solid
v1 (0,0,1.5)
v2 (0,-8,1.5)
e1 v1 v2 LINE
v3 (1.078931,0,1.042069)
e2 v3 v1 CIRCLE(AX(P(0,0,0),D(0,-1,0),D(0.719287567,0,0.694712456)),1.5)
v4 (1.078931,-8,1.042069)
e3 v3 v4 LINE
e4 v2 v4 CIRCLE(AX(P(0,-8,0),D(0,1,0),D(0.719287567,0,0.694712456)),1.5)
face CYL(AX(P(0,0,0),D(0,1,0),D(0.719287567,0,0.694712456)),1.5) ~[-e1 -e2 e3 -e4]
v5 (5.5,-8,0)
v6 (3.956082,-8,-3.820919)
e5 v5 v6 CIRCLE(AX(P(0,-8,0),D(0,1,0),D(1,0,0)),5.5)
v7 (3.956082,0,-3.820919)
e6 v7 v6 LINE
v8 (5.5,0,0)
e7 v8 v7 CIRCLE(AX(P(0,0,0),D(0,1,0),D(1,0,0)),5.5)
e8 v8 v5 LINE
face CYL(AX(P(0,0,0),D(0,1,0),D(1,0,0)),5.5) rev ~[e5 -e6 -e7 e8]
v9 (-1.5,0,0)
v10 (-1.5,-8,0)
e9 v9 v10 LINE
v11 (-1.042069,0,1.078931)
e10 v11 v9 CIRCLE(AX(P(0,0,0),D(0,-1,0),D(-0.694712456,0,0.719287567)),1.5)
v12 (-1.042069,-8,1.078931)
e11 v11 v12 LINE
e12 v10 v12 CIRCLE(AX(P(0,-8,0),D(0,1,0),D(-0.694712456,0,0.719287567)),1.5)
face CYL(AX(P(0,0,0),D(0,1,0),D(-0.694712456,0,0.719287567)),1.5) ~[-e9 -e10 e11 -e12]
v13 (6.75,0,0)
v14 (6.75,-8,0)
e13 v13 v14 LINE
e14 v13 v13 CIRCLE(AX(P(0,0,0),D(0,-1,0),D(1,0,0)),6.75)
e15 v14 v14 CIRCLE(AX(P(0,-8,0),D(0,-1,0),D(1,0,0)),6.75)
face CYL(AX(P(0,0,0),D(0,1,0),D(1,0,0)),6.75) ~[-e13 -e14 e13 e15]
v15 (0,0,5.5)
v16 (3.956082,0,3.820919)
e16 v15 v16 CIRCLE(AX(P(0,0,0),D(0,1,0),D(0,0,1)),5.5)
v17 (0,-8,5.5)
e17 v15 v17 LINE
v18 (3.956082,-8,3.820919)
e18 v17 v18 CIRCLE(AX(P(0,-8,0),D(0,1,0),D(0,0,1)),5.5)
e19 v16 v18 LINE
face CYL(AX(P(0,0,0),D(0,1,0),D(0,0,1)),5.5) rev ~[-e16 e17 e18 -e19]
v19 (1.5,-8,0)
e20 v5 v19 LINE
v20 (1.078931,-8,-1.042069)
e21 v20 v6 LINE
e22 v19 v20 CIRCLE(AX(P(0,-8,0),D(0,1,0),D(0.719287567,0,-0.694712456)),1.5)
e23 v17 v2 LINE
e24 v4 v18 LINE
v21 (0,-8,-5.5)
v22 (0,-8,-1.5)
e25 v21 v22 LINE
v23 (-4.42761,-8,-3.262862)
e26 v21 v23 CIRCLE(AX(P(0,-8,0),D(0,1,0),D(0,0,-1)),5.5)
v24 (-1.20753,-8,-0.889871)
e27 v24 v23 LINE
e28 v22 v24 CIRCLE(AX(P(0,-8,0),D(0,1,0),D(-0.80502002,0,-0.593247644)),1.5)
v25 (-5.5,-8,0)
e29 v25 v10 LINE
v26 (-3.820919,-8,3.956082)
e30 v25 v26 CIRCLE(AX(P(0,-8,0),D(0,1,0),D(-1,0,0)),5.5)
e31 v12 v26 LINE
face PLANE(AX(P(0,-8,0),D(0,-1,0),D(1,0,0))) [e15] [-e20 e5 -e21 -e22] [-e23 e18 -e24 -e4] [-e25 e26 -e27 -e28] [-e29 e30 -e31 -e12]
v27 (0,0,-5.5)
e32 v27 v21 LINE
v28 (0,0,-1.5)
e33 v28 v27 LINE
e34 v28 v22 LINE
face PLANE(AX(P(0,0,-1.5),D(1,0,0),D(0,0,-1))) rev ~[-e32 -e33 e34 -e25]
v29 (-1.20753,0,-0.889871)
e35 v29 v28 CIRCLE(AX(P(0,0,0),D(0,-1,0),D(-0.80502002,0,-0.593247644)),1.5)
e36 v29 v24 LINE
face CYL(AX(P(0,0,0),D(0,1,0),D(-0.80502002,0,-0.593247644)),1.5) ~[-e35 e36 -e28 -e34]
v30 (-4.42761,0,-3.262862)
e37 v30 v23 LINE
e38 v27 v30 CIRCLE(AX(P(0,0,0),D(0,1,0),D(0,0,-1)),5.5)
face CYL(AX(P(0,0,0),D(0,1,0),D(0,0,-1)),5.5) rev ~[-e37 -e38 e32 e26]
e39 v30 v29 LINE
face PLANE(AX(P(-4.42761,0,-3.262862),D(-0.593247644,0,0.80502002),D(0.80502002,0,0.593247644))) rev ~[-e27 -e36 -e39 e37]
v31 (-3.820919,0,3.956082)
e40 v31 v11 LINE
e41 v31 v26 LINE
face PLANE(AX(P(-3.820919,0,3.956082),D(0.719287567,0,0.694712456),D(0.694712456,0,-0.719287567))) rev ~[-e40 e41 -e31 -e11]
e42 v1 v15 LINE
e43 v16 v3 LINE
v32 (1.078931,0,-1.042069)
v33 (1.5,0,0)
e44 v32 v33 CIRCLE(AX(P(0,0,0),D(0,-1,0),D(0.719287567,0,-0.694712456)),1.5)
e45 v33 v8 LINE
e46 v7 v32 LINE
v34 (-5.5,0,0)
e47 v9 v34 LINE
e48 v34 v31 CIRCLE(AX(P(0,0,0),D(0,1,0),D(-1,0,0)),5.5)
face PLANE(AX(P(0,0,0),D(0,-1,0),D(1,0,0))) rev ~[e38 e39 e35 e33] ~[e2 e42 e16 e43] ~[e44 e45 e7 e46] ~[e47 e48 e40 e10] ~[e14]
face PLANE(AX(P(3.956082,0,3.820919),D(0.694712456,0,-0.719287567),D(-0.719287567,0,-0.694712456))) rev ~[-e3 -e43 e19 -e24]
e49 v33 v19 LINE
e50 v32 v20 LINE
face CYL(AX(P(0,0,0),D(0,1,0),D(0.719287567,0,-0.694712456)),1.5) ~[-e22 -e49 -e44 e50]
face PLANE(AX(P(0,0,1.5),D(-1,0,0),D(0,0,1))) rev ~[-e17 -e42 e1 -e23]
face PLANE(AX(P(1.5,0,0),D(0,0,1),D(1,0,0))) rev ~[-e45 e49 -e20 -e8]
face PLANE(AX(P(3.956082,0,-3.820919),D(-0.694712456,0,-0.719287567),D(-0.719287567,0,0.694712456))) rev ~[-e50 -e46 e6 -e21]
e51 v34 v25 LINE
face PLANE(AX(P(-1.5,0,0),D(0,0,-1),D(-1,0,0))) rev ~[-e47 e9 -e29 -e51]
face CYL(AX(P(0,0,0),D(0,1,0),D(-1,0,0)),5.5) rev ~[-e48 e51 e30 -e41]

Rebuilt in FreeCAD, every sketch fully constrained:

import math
import FreeCAD as App
import Part
import Sketcher
Q = App.Units.Quantity

doc = App.newDocument("Part")
body = doc.addObject("PartDesign::Body", "Body")

# Sketch on XZ plane
sketch1 = doc.addObject("Sketcher::SketchObject", "Sketch")
body.addObject(sketch1)
sketch1.AttachmentSupport = (doc.XZ_Plane, [""])
sketch1.MapMode = "FlatFace"
sketch1.addGeometry(Part.Circle(App.Vector(0, 0, 0), App.Vector(0, 0, 1), 7), False)
sketch1.addConstraint(Sketcher.Constraint("Coincident", 0, 3, -1, 1))
sketch1.addConstraint(Sketcher.Constraint("Diameter", 0, Q("13.5 mm")))
pad1 = doc.addObject("PartDesign::Pad", "Pad")
body.addObject(pad1)
pad1.Profile = sketch1
pad1.Length = 8

# Sketch on XZ plane
sketch2 = doc.addObject("Sketcher::SketchObject", "Sketch001")
body.addObject(sketch2)
sketch2.AttachmentSupport = (doc.XZ_Plane, [""])
sketch2.MapMode = "FlatFace"
sketch2.addGeometry(Part.LineSegment(App.Vector(0, 1.5, 0), App.Vector(0, 5.5, 0)), False)
sketch2.addGeometry(Part.ArcOfCircle(Part.Circle(App.Vector(0, 0, 0), App.Vector(0, 0, 1), 5.5), math.radians(44), math.radians(90)), False)
sketch2.addGeometry(Part.LineSegment(App.Vector(4, 3.8, 0), App.Vector(1.1, 1, 0)), False)
sketch2.addGeometry(Part.ArcOfCircle(Part.Circle(App.Vector(0, 0, 0), App.Vector(0, 0, 1), 1.5), math.radians(44), math.radians(90)), False)
sketch2.addConstraint(Sketcher.Constraint("Coincident", 0, 2, 1, 2))
sketch2.addConstraint(Sketcher.Constraint("Coincident", 1, 1, 2, 1))
sketch2.addConstraint(Sketcher.Constraint("Coincident", 2, 2, 3, 1))
sketch2.addConstraint(Sketcher.Constraint("Coincident", 3, 2, 0, 1))
sketch2.addConstraint(Sketcher.Constraint("Vertical", 0))
sketch2.addConstraint(Sketcher.Constraint("Coincident", 1, 3, -1, 1))
sketch2.addConstraint(Sketcher.Constraint("Coincident", 3, 3, -1, 1))
sketch2.addConstraint(Sketcher.Constraint("PointOnObject", 0, 2, -2))
sketch2.addConstraint(Sketcher.Constraint("Radius", 1, Q("5.5 mm")))
sketch2.addConstraint(Sketcher.Constraint("Radius", 3, Q("1.5 mm")))
sketch2.addConstraint(Sketcher.Constraint("DistanceX", -1, 1, 1, 1, Q("3.956082 mm")))
sketch2.addConstraint(Sketcher.Constraint("DistanceX", -1, 1, 2, 2, Q("1.078931 mm")))
pocket1 = doc.addObject("PartDesign::Pocket", "Pocket")
body.addObject(pocket1)
pocket1.Profile = sketch2
pocket1.Type = "ThroughAll"
pocket1.Reversed = True

# Sketch on XZ plane
sketch3 = doc.addObject("Sketcher::SketchObject", "Sketch002")
body.addObject(sketch3)
sketch3.AttachmentSupport = (doc.XZ_Plane, [""])
sketch3.MapMode = "FlatFace"
sketch3.addGeometry(Part.LineSegment(App.Vector(-1.5, 0, 0), App.Vector(-5.5, 0, 0)), False)
sketch3.addGeometry(Part.ArcOfCircle(Part.Circle(App.Vector(0, 0, 0), App.Vector(0, 0, 1), 5.5), math.radians(134), math.radians(180)), False)
sketch3.addGeometry(Part.LineSegment(App.Vector(-3.8, 4, 0), App.Vector(-1, 1.1, 0)), False)
sketch3.addGeometry(Part.ArcOfCircle(Part.Circle(App.Vector(0, 0, 0), App.Vector(0, 0, 1), 1.5), math.radians(134), math.radians(180)), False)
sketch3.addGeometry(Part.ArcOfCircle(Part.Circle(App.Vector(0, 0, 0), App.Vector(0, 0, 1), 5.5), math.radians(-144), math.radians(-90)), False)
sketch3.addGeometry(Part.LineSegment(App.Vector(-4.4, -3.3, 0), App.Vector(-1.2, -0.9, 0)), False)
sketch3.addGeometry(Part.ArcOfCircle(Part.Circle(App.Vector(0, 0, 0), App.Vector(0, 0, 1), 1.5), math.radians(-144), math.radians(-90)), False)
sketch3.addGeometry(Part.LineSegment(App.Vector(0, -1.5, 0), App.Vector(0, -5.5, 0)), False)
sketch3.addGeometry(Part.ArcOfCircle(Part.Circle(App.Vector(0, 0, 0), App.Vector(0, 0, 1), 5.5), math.radians(-44), math.radians(0)), False)
sketch3.addGeometry(Part.LineSegment(App.Vector(4, -3.8, 0), App.Vector(1.1, -1, 0)), False)
sketch3.addGeometry(Part.ArcOfCircle(Part.Circle(App.Vector(0, 0, 0), App.Vector(0, 0, 1), 1.5), math.radians(-44), math.radians(0)), False)
sketch3.addGeometry(Part.LineSegment(App.Vector(1.5, 0, 0), App.Vector(5.5, 0, 0)), False)
sketch3.addGeometry(Part.LineSegment(App.Vector(0, 1.5, 0), App.Vector(0, 5.5, 0)), False)
sketch3.addGeometry(Part.ArcOfCircle(Part.Circle(App.Vector(0, 0, 0), App.Vector(0, 0, 1), 5.5), math.radians(44), math.radians(90)), False)
sketch3.addGeometry(Part.LineSegment(App.Vector(4, 3.8, 0), App.Vector(1.1, 1, 0)), False)
sketch3.addGeometry(Part.ArcOfCircle(Part.Circle(App.Vector(0, 0, 0), App.Vector(0, 0, 1), 1.5), math.radians(44), math.radians(90)), False)
sketch3.addConstraint(Sketcher.Constraint("Coincident", 0, 2, 1, 2))
sketch3.addConstraint(Sketcher.Constraint("Coincident", 1, 1, 2, 1))
sketch3.addConstraint(Sketcher.Constraint("Coincident", 2, 2, 3, 1))
sketch3.addConstraint(Sketcher.Constraint("Coincident", 3, 2, 0, 1))
sketch3.addConstraint(Sketcher.Constraint("Coincident", 4, 1, 5, 1))
sketch3.addConstraint(Sketcher.Constraint("Coincident", 5, 2, 6, 1))
sketch3.addConstraint(Sketcher.Constraint("Coincident", 6, 2, 7, 1))
sketch3.addConstraint(Sketcher.Constraint("Coincident", 7, 2, 4, 2))
sketch3.addConstraint(Sketcher.Constraint("Coincident", 8, 1, 9, 1))
sketch3.addConstraint(Sketcher.Constraint("Coincident", 9, 2, 10, 1))
sketch3.addConstraint(Sketcher.Constraint("Coincident", 10, 2, 11, 1))
sketch3.addConstraint(Sketcher.Constraint("Coincident", 11, 2, 8, 2))
sketch3.addConstraint(Sketcher.Constraint("Coincident", 12, 2, 13, 2))
sketch3.addConstraint(Sketcher.Constraint("Coincident", 13, 1, 14, 1))
sketch3.addConstraint(Sketcher.Constraint("Coincident", 14, 2, 15, 1))
sketch3.addConstraint(Sketcher.Constraint("Coincident", 15, 2, 12, 1))
sketch3.addConstraint(Sketcher.Constraint("Horizontal", 0))
sketch3.addConstraint(Sketcher.Constraint("Vertical", 7))
sketch3.addConstraint(Sketcher.Constraint("Horizontal", 11))
sketch3.addConstraint(Sketcher.Constraint("Vertical", 12))
sketch3.addConstraint(Sketcher.Constraint("Coincident", 1, 3, -1, 1))
sketch3.addConstraint(Sketcher.Constraint("Coincident", 3, 3, -1, 1))
sketch3.addConstraint(Sketcher.Constraint("Coincident", 4, 3, -1, 1))
sketch3.addConstraint(Sketcher.Constraint("Coincident", 6, 3, -1, 1))
sketch3.addConstraint(Sketcher.Constraint("Coincident", 8, 3, -1, 1))
sketch3.addConstraint(Sketcher.Constraint("Coincident", 10, 3, -1, 1))
sketch3.addConstraint(Sketcher.Constraint("Coincident", 13, 3, -1, 1))
sketch3.addConstraint(Sketcher.Constraint("Coincident", 15, 3, -1, 1))
sketch3.addConstraint(Sketcher.Constraint("Equal", 1, 4))
sketch3.addConstraint(Sketcher.Constraint("Equal", 3, 6))
sketch3.addConstraint(Sketcher.Constraint("Equal", 4, 8))
sketch3.addConstraint(Sketcher.Constraint("Equal", 6, 10))
sketch3.addConstraint(Sketcher.Constraint("Equal", 8, 13))
sketch3.addConstraint(Sketcher.Constraint("Equal", 10, 15))
sketch3.addConstraint(Sketcher.Constraint("PointOnObject", 0, 2, -1))
sketch3.addConstraint(Sketcher.Constraint("PointOnObject", 6, 2, -2))
sketch3.addConstraint(Sketcher.Constraint("PointOnObject", 10, 2, -1))
sketch3.addConstraint(Sketcher.Constraint("PointOnObject", 12, 2, -2))
sketch3.addConstraint(Sketcher.Constraint("Perpendicular", 2, 14))
sketch3.addConstraint(Sketcher.Constraint("Vertical", 8, 1, 13, 1))
sketch3.addConstraint(Sketcher.Constraint("Vertical", 9, 2, 14, 2))
sketch3.addConstraint(Sketcher.Constraint("Radius", 1, Q("5.5 mm")))
sketch3.addConstraint(Sketcher.Constraint("Radius", 3, Q("1.5 mm")))
sketch3.addConstraint(Sketcher.Constraint("DistanceX", 1, 1, -1, 1, Q("3.820919 mm")))
sketch3.addConstraint(Sketcher.Constraint("DistanceX", 2, 2, -1, 1, Q("1.042069 mm")))
sketch3.addConstraint(Sketcher.Constraint("DistanceX", 4, 1, -1, 1, Q("4.42761 mm")))
sketch3.addConstraint(Sketcher.Constraint("DistanceX", 5, 2, -1, 1, Q("1.20753 mm")))
sketch3.addConstraint(Sketcher.Constraint("DistanceX", -1, 1, 8, 1, Q("3.956082 mm")))
pocket2 = doc.addObject("PartDesign::Pocket", "Pocket001")
body.addObject(pocket2)
pocket2.Profile = sketch3
pocket2.Type = "ThroughAll"
pocket2.Reversed = True

doc.recompute()
